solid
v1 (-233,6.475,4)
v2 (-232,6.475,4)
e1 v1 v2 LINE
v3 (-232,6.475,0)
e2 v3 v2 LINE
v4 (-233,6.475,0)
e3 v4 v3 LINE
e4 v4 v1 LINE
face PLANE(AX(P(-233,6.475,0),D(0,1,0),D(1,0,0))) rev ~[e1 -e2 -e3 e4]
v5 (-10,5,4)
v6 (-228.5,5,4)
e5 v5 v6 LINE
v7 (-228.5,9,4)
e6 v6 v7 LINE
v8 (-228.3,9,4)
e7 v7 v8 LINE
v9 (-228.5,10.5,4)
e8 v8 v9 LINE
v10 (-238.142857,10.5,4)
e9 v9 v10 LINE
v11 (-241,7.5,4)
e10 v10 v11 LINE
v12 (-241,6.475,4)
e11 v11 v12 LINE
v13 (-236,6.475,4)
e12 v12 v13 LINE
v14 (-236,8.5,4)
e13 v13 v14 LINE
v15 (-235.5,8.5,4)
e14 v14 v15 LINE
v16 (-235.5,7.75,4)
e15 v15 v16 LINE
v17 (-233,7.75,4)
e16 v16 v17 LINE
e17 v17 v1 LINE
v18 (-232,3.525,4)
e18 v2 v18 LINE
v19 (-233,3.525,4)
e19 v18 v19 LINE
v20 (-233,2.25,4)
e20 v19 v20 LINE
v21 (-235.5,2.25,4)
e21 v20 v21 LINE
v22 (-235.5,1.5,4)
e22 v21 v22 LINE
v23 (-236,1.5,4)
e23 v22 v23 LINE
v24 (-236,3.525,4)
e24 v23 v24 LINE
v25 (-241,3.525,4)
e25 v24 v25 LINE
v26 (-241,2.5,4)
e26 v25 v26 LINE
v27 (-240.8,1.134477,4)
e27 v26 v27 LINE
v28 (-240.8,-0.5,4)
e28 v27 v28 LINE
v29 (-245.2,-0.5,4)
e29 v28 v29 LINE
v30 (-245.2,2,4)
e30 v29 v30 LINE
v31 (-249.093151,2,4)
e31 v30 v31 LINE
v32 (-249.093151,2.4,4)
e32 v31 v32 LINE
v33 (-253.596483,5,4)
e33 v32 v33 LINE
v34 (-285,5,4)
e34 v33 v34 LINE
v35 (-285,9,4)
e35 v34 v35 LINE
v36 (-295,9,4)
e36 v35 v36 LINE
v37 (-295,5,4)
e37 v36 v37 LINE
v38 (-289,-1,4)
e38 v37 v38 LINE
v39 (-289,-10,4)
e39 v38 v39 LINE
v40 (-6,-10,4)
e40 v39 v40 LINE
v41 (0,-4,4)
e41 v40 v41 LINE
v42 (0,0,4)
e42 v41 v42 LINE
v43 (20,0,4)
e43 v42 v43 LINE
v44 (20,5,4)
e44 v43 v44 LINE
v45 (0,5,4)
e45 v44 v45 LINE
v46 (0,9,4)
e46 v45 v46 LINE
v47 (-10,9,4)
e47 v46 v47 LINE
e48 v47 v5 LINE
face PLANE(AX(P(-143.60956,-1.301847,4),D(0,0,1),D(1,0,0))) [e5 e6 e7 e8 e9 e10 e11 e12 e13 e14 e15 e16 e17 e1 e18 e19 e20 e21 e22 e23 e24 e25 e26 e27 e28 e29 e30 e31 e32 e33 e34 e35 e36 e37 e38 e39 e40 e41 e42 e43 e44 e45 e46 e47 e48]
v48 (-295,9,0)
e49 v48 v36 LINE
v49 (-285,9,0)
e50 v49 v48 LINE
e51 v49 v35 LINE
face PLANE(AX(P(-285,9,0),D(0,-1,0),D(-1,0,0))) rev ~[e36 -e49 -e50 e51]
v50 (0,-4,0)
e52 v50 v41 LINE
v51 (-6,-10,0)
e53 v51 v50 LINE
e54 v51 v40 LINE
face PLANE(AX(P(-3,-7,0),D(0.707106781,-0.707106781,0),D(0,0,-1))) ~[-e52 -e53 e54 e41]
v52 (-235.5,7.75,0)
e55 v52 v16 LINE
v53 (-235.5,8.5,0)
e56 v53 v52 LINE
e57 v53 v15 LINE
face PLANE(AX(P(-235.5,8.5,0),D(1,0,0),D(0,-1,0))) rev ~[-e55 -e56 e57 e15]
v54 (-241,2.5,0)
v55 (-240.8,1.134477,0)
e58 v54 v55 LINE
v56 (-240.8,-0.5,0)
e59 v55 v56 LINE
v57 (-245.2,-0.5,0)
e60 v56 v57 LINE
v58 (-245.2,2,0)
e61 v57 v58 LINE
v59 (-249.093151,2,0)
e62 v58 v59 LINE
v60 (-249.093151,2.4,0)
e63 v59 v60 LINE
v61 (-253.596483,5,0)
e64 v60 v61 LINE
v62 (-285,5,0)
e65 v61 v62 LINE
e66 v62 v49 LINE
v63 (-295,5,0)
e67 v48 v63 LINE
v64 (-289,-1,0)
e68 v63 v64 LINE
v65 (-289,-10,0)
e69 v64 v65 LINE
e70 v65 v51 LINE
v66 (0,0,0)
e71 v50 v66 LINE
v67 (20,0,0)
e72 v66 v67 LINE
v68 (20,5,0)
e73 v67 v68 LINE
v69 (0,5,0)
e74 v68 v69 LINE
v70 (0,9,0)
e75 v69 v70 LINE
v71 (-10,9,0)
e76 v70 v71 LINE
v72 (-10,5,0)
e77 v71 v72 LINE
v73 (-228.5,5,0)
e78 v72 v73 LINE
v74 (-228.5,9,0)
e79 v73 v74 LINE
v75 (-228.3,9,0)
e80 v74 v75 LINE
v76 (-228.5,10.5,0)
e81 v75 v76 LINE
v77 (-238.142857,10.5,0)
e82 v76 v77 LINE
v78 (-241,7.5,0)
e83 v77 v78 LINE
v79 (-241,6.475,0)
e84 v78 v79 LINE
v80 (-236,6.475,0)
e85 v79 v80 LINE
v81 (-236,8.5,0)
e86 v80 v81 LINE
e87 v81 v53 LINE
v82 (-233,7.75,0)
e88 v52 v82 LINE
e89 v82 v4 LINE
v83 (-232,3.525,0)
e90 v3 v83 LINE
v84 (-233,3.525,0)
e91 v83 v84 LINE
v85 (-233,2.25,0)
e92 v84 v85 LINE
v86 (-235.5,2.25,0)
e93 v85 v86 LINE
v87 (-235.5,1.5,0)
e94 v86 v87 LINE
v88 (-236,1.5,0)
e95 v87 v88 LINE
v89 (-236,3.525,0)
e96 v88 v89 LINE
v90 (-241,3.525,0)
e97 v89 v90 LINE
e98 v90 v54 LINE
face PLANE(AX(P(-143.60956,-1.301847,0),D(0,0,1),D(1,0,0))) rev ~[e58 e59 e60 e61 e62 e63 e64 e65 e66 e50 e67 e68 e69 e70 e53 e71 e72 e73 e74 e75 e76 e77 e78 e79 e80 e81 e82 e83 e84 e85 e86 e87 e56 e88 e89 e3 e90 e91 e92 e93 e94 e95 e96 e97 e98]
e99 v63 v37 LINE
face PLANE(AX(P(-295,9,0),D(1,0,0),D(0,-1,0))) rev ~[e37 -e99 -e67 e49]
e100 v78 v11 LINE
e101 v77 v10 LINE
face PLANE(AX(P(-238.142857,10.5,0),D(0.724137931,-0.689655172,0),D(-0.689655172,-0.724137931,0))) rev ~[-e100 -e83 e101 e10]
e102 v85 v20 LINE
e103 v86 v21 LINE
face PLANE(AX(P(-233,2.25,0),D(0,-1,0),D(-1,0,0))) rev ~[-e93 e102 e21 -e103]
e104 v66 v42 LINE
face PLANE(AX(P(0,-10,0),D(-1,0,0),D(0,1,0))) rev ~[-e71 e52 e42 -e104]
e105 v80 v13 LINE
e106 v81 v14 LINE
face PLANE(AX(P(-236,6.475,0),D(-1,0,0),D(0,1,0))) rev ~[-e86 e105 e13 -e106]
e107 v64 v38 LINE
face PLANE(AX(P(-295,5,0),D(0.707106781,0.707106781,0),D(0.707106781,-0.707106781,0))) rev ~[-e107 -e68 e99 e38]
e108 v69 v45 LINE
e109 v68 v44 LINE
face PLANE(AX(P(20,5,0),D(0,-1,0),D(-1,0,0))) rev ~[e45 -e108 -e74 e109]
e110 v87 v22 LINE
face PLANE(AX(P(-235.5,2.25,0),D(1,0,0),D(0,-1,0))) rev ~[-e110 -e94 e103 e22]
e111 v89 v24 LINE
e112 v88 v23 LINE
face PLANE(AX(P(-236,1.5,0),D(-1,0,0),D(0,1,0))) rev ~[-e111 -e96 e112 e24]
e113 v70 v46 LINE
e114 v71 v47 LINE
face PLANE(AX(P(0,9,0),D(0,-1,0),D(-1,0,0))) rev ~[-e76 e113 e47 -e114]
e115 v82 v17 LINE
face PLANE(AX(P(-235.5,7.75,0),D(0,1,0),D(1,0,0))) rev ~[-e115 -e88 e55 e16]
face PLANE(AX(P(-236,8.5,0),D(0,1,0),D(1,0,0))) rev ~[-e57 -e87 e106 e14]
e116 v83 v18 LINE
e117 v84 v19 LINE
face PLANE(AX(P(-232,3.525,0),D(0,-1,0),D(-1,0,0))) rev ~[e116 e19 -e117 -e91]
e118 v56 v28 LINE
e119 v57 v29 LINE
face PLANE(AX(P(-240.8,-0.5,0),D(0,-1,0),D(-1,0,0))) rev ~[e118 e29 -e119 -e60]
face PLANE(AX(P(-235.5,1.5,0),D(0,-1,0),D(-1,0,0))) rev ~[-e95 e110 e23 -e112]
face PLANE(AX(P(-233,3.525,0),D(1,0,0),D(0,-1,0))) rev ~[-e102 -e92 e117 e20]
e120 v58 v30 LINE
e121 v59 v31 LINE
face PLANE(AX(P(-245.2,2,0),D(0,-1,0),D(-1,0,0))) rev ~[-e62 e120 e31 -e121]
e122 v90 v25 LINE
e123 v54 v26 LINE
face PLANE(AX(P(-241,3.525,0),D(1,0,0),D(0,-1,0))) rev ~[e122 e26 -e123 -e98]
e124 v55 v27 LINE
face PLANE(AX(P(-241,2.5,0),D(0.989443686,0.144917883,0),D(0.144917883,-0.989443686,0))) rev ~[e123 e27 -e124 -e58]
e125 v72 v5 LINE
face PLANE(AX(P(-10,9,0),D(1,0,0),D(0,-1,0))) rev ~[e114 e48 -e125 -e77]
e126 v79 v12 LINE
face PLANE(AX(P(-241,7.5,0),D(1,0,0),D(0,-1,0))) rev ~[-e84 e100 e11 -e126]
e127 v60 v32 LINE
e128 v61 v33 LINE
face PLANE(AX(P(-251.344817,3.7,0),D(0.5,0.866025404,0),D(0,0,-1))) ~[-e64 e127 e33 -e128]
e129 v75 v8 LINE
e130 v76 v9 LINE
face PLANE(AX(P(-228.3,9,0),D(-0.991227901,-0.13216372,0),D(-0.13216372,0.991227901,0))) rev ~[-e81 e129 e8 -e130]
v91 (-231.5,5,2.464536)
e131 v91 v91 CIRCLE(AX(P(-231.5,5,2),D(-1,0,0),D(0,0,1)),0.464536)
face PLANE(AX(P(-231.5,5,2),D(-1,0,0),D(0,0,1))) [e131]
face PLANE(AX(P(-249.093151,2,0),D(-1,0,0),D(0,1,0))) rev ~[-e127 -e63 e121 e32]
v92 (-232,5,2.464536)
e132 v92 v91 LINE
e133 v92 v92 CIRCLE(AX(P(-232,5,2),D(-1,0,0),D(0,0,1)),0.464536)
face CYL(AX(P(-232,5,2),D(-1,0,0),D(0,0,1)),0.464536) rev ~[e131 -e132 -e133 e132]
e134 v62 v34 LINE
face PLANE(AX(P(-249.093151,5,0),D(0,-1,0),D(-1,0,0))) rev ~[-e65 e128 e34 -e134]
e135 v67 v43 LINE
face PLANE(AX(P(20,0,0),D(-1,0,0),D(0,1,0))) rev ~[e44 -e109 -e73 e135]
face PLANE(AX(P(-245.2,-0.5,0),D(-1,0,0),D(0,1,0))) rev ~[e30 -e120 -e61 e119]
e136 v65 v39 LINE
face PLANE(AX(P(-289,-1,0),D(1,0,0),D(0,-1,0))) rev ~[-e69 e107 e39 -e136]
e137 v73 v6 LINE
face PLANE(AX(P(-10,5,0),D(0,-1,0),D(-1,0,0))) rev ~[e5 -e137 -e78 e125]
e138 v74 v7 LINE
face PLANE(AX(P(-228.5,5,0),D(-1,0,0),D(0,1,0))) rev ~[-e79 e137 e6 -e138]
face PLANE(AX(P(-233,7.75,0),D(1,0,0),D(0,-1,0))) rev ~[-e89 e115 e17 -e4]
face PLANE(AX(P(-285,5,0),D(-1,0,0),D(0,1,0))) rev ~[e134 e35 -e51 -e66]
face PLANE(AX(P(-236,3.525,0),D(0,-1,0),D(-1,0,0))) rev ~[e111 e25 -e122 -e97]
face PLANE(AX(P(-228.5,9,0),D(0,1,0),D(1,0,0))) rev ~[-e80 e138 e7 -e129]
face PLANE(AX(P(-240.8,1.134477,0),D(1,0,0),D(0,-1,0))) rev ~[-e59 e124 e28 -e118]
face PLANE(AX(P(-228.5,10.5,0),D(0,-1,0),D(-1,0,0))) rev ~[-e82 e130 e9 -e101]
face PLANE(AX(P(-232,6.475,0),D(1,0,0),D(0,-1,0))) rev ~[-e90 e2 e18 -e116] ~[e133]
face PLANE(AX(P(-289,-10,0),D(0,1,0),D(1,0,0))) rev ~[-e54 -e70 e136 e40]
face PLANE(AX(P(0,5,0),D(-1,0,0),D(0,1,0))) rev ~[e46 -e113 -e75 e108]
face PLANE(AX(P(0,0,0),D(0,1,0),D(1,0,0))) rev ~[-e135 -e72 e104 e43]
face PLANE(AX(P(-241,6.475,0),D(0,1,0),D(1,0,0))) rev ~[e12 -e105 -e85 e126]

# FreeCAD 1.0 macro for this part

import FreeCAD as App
import Part
import Sketcher
Q = App.Units.Quantity


def edges_at(feature, points):
    """Names of the edges that pass closest to the given points."""
    edges = feature.Shape.Edges
    near = lambda p: min(range(len(edges)), key=lambda i: edges[i].distToShape(Part.Vertex(*p))[0])
    return sorted({f"Edge{near(p) + 1}" for p in points})


def add_polygon(sketch, points):
    """Adds a closed chain of lines whose ends are joined by coincident constraints."""
    first, n = sketch.GeometryCount, len(points)
    for a, b in zip(points, points[1:] + points[:1]):
        sketch.addGeometry(Part.LineSegment(App.Vector(*a, 0), App.Vector(*b, 0)), False)
    for i in range(n):
        sketch.addConstraint(Sketcher.Constraint("Coincident", first + i, 2, first + (i + 1) % n, 1))

doc = App.newDocument("Part")
body = doc.addObject("PartDesign::Body", "Body")

sketch1 = body.newObject("Sketcher::SketchObject", "Sketch")
sketch1.AttachmentSupport = (doc.getObject("XY_Plane"), [""])
sketch1.MapMode = "FlatFace"
add_polygon(sketch1, [(0, 0), (20, 0), (20, 5), (0, 5), (0, 9), (-10, 9), (-10, 5), (-228.5, 5), (-228.5, 9), (-228.3, 9), (-228.5, 10.5), (-238.142857, 10.5), (-241, 7.5), (-241, 6.475), (-236, 6.475), (-236, 8.5), (-235.5, 8.5), (-235.5, 7.75), (-233, 7.75), (-233, 6.475), (-232, 6.475), (-232, 3.525), (-233, 3.525), (-233, 2.25), (-235.5, 2.25), (-235.5, 1.5), (-236, 1.5), (-236, 3.525), (-241, 3.525), (-241, 2.5), (-240.8, 1.134477), (-240.8, -0.5), (-245.2, -0.5), (-245.2, 2), (-249.093151, 2), (-249.093151, 5), (-285, 5), (-285, 9), (-295, 9), (-295, 5), (-289, -1), (-289, -10), (0, -10)])
sketch1.addConstraint(Sketcher.Constraint("Horizontal", 0))
sketch1.addConstraint(Sketcher.Constraint("Vertical", 1))
sketch1.addConstraint(Sketcher.Constraint("Horizontal", 2))
sketch1.addConstraint(Sketcher.Constraint("Vertical", 3))
sketch1.addConstraint(Sketcher.Constraint("Horizontal", 4))
sketch1.addConstraint(Sketcher.Constraint("Vertical", 5))
sketch1.addConstraint(Sketcher.Constraint("Horizontal", 6))
sketch1.addConstraint(Sketcher.Constraint("Vertical", 7))
sketch1.addConstraint(Sketcher.Constraint("Horizontal", 8))
sketch1.addConstraint(Sketcher.Constraint("Horizontal", 10))
sketch1.addConstraint(Sketcher.Constraint("Vertical", 12))
sketch1.addConstraint(Sketcher.Constraint("Horizontal", 13))
sketch1.addConstraint(Sketcher.Constraint("Vertical", 14))
sketch1.addConstraint(Sketcher.Constraint("Horizontal", 15))
sketch1.addConstraint(Sketcher.Constraint("Vertical", 16))
sketch1.addConstraint(Sketcher.Constraint("Horizontal", 17))
sketch1.addConstraint(Sketcher.Constraint("Vertical", 18))
sketch1.addConstraint(Sketcher.Constraint("Horizontal", 19))
sketch1.addConstraint(Sketcher.Constraint("Vertical", 20))
sketch1.addConstraint(Sketcher.Constraint("Horizontal", 21))
sketch1.addConstraint(Sketcher.Constraint("Vertical", 22))
sketch1.addConstraint(Sketcher.Constraint("Horizontal", 23))
sketch1.addConstraint(Sketcher.Constraint("Vertical", 24))
sketch1.addConstraint(Sketcher.Constraint("Horizontal", 25))
sketch1.addConstraint(Sketcher.Constraint("Vertical", 26))
sketch1.addConstraint(Sketcher.Constraint("Horizontal", 27))
sketch1.addConstraint(Sketcher.Constraint("Vertical", 28))
sketch1.addConstraint(Sketcher.Constraint("Vertical", 30))
sketch1.addConstraint(Sketcher.Constraint("Horizontal", 31))
sketch1.addConstraint(Sketcher.Constraint("Vertical", 32))
sketch1.addConstraint(Sketcher.Constraint("Horizontal", 33))
sketch1.addConstraint(Sketcher.Constraint("Vertical", 34))
sketch1.addConstraint(Sketcher.Constraint("Horizontal", 35))
sketch1.addConstraint(Sketcher.Constraint("Vertical", 36))
sketch1.addConstraint(Sketcher.Constraint("Horizontal", 37))
sketch1.addConstraint(Sketcher.Constraint("Vertical", 38))
sketch1.addConstraint(Sketcher.Constraint("Vertical", 40))
sketch1.addConstraint(Sketcher.Constraint("Horizontal", 41))
sketch1.addConstraint(Sketcher.Constraint("Vertical", 42))
sketch1.addConstraint(Sketcher.Constraint("Coincident", 42, 2, -1, 1))
sketch1.addConstraint(Sketcher.Constraint("PointOnObject", 2, 2, -2))
sketch1.addConstraint(Sketcher.Constraint("Horizontal", 2, 2, 5, 2))
sketch1.addConstraint(Sketcher.Constraint("Horizontal", 4, 2, 7, 2))
sketch1.addConstraint(Sketcher.Constraint("Horizontal", 13, 2, 18, 2))
sketch1.addConstraint(Sketcher.Constraint("Horizontal", 21, 2, 26, 2))
sketch1.addConstraint(Sketcher.Constraint("Horizontal", 6, 2, 34, 2))
sketch1.addConstraint(Sketcher.Constraint("Horizontal", 8, 2, 36, 2))
sketch1.addConstraint(Sketcher.Constraint("Horizontal", 35, 2, 38, 2))
sketch1.addConstraint(Sketcher.Constraint("Vertical", 7, 2, 9, 2))
sketch1.addConstraint(Sketcher.Constraint("Vertical", 18, 2, 21, 2))
sketch1.addConstraint(Sketcher.Constraint("Vertical", 16, 2, 23, 2))
sketch1.addConstraint(Sketcher.Constraint("Vertical", 14, 2, 25, 2))
sketch1.addConstraint(Sketcher.Constraint("Vertical", 12, 2, 27, 2))
sketch1.addConstraint(Sketcher.Constraint("Equal", 4, 37))
sketch1.addConstraint(Sketcher.Constraint("Equal", 27, 1))
sketch1.addConstraint(Sketcher.Constraint("Equal", 18, 22))
sketch1.addConstraint(Sketcher.Constraint("Equal", 16, 24))
sketch1.addConstraint(Sketcher.Constraint("Equal", 12, 28))
sketch1.addConstraint(Sketcher.Constraint("Equal", 23, 32))
sketch1.addConstraint(Sketcher.Constraint("Equal", 37, 42))
sketch1.addConstraint(Sketcher.Constraint("DistanceX", 0, 1, 0, 2, Q("20 mm")))
sketch1.addConstraint(Sketcher.Constraint("DistanceX", 4, 2, 4, 1, Q("10 mm")))
sketch1.addConstraint(Sketcher.Constraint("DistanceX", 13, 1, 13, 2, Q("5 mm")))
sketch1.addConstraint(Sketcher.Constraint("DistanceX", 19, 1, 19, 2, Q("1 mm")))
sketch1.addConstraint(Sketcher.Constraint("DistanceX", 41, 1, 41, 2, Q("289 mm")))
sketch1.addConstraint(Sketcher.Constraint("DistanceY", 3, 1, 3, 2, Q("4 mm")))
sketch1.addConstraint(Sketcher.Constraint("DistanceY", 34, 1, 34, 2, Q("3 mm")))
sketch1.addConstraint(Sketcher.Constraint("DistanceY", 40, 2, 40, 1, Q("9 mm")))
sketch1.addConstraint(Sketcher.Constraint("Angle", 39, Q("-45 deg")))
sketch1.addConstraint(Sketcher.Constraint("DistanceX", 6, 2, 6, 1, Q("218.5 mm")))
sketch1.addConstraint(Sketcher.Constraint("DistanceX", 8, 1, 8, 2, Q("0.2 mm")))
sketch1.addConstraint(Sketcher.Constraint("DistanceX", 15, 1, 15, 2, Q("0.5 mm")))
sketch1.addConstraint(Sketcher.Constraint("DistanceX", 17, 1, 17, 2, Q("2.5 mm")))
sketch1.addConstraint(Sketcher.Constraint("DistanceX", 31, 2, 31, 1, Q("4.4 mm")))
sketch1.addConstraint(Sketcher.Constraint("DistanceX", 11, 2, -1, 1, Q("241 mm")))
sketch1.addConstraint(Sketcher.Constraint("DistanceY", 11, 2, 10, 2, Q("3 mm")))
sketch1.addConstraint(Sketcher.Constraint("DistanceY", 14, 2, 10, 2, Q("2 mm")))
sketch1.addConstraint(Sketcher.Constraint("DistanceY", 28, 2, 11, 2, Q("5 mm")))
sketch1.addConstraint(Sketcher.Constraint("DistanceY", 30, 2, 28, 2, Q("3 mm")))
sketch1.addConstraint(Sketcher.Constraint("DistanceY", 16, 2, 16, 1, Q("0.75 mm")))
sketch1.addConstraint(Sketcher.Constraint("DistanceY", 20, 2, 20, 1, Q("2.95 mm")))
sketch1.addConstraint(Sketcher.Constraint("DistanceX", 29, 2, -1, 1, Q("240.8 mm")))
sketch1.addConstraint(Sketcher.Constraint("DistanceX", 33, 2, 33, 1, Q("3.893151 mm")))
sketch1.addConstraint(Sketcher.Constraint("Distance", 29, Q("1.380092 mm")))
sketch1.addConstraint(Sketcher.Constraint("DistanceX", 10, 2, 10, 1, Q("9.642857 mm")))
pad1 = body.newObject("PartDesign::Pad", "Pad")
pad1.Profile = sketch1
pad1.Length = 4
doc.recompute()

chamfer = body.newObject("PartDesign::Chamfer", "Chamfer")
chamfer.Base = (pad1, edges_at(pad1, [(0, -10, 2)]))
chamfer.Size = 6
doc.recompute()

chamfer2 = body.newObject("PartDesign::Chamfer", "Chamfer001")
chamfer2.Base = (chamfer, edges_at(chamfer, [(-249.093, 5, 2)]))
chamfer2.ChamferType = "Two distances"
chamfer2.Size = 2.6
chamfer2.Size2 = 4.503332
chamfer2.FlipDirection = True

sketch2 = body.newObject("Sketcher::SketchObject", "Sketch001")
sketch2.AttachmentSupport = (doc.getObject("YZ_Plane"), [""])
sketch2.MapMode = "FlatFace"
sketch2.AttachmentOffset = App.Placement(App.Vector(0, 0, -232), App.Rotation())
sketch2.addGeometry(Part.Circle(App.Vector(5, 2, 0), App.Vector(0, 0, 1), 0.464536), False)
sketch2.addConstraint(Sketcher.Constraint("DistanceX", -1, 1, 0, 3, Q("5 mm")))
sketch2.addConstraint(Sketcher.Constraint("DistanceY", -1, 1, 0, 3, Q("2 mm")))
sketch2.addConstraint(Sketcher.Constraint("Diameter", 0, Q("0.929072 mm")))
pocket1 = body.newObject("PartDesign::Pocket", "Pocket")
pocket1.Profile = sketch2
pocket1.Length = 0.5
pocket1.Reversed = True

doc.recompute()
